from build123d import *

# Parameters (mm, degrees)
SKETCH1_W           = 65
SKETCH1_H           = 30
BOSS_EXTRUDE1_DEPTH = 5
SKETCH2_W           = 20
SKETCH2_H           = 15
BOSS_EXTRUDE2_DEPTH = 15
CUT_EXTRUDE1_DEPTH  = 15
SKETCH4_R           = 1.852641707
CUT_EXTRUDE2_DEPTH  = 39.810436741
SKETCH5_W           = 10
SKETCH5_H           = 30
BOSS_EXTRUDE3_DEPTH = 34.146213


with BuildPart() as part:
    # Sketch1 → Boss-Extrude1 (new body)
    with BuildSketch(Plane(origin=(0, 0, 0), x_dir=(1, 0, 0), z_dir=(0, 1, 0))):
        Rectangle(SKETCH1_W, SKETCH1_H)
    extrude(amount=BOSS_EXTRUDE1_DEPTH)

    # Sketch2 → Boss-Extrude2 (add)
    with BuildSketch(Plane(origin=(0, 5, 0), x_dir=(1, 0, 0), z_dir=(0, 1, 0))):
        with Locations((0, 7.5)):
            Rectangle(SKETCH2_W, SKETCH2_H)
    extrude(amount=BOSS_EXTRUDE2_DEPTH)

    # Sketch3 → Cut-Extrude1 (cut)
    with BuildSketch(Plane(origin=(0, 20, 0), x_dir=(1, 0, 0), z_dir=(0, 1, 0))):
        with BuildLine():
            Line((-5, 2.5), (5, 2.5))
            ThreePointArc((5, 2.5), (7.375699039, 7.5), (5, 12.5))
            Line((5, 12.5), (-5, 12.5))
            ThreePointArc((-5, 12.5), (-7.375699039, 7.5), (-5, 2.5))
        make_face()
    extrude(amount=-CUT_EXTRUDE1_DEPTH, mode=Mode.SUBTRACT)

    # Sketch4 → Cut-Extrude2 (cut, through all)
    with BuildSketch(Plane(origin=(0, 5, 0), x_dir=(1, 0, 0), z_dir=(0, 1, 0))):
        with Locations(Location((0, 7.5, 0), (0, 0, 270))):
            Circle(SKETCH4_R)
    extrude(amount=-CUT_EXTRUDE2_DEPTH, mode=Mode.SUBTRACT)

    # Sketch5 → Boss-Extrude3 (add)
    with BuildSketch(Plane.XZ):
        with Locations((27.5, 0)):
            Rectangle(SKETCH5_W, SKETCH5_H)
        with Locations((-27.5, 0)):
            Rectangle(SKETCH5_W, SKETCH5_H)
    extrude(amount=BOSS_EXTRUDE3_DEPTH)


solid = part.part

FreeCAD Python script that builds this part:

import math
import FreeCAD as App
import Part
import Sketcher

doc = App.newDocument("Part")
body = doc.addObject("PartDesign::Body", "Body")

sketch1 = body.newObject("Sketcher::SketchObject", "Sketch")
sketch1.AttachmentSupport = (doc.getObject("XZ_Plane"), [""])
sketch1.MapMode = "FlatFace"
sketch1.addGeometry(Part.LineSegment(App.Vector(-32, -15, 0), App.Vector(-32, 15, 0)), False)
sketch1.addGeometry(Part.LineSegment(App.Vector(-32, 15, 0), App.Vector(32, 15, 0)), False)
sketch1.addGeometry(Part.LineSegment(App.Vector(32, 15, 0), App.Vector(32, -15, 0)), False)
sketch1.addGeometry(Part.LineSegment(App.Vector(32, -15, 0), App.Vector(-32, -15, 0)), False)
sketch1.addConstraint(Sketcher.Constraint("Coincident", 0, 2, 1, 1))
sketch1.addConstraint(Sketcher.Constraint("Coincident", 1, 2, 2, 1))
sketch1.addConstraint(Sketcher.Constraint("Coincident", 2, 2, 3, 1))
sketch1.addConstraint(Sketcher.Constraint("Coincident", 3, 2, 0, 1))
sketch1.addConstraint(Sketcher.Constraint("Vertical", 0))
sketch1.addConstraint(Sketcher.Constraint("Horizontal", 1))
sketch1.addConstraint(Sketcher.Constraint("Vertical", 2))
sketch1.addConstraint(Sketcher.Constraint("Horizontal", 3))
sketch1.addConstraint(Sketcher.Constraint("Symmetric", 0, 2, 2, 2, -1, 1))
sketch1.addConstraint(Sketcher.Constraint("DistanceX", 1, 1, 1, 2, 65.0))
sketch1.addConstraint(Sketcher.Constraint("DistanceY", 0, 1, 0, 2, 30.0))
pad1 = body.newObject("PartDesign::Pad", "Pad")
pad1.Profile = sketch1
pad1.Length = 5
pad1.Reversed = True

sketch2 = body.newObject("Sketcher::SketchObject", "Sketch001")
sketch2.AttachmentSupport = (doc.getObject("XZ_Plane"), [""])
sketch2.MapMode = "FlatFace"
sketch2.AttachmentOffset = App.Placement(App.Vector(0, 0, -5), App.Rotation())
sketch2.addGeometry(Part.LineSegment(App.Vector(-10, -15, 0), App.Vector(-10, 0, 0)), False)
sketch2.addGeometry(Part.LineSegment(App.Vector(-10, 0, 0), App.Vector(10, 0, 0)), False)
sketch2.addGeometry(Part.LineSegment(App.Vector(10, 0, 0), App.Vector(10, -15, 0)), False)
sketch2.addGeometry(Part.LineSegment(App.Vector(10, -15, 0), App.Vector(-10, -15, 0)), False)
sketch2.addConstraint(Sketcher.Constraint("Coincident", 0, 2, 1, 1))
sketch2.addConstraint(Sketcher.Constraint("Coincident", 1, 2, 2, 1))
sketch2.addConstraint(Sketcher.Constraint("Coincident", 2, 2, 3, 1))
sketch2.addConstraint(Sketcher.Constraint("Coincident", 3, 2, 0, 1))
sketch2.addConstraint(Sketcher.Constraint("Vertical", 0))
sketch2.addConstraint(Sketcher.Constraint("Horizontal", 1))
sketch2.addConstraint(Sketcher.Constraint("Vertical", 2))
sketch2.addConstraint(Sketcher.Constraint("Horizontal", 3))
sketch2.addConstraint(Sketcher.Constraint("Symmetric", 0, 2, 1, 2, -1, 1))
sketch2.addConstraint(Sketcher.Constraint("DistanceX", 1, 1, 1, 2, 20.0))
sketch2.addConstraint(Sketcher.Constraint("DistanceY", 0, 1, 0, 2, 15.0))
pad2 = body.newObject("PartDesign::Pad", "Pad001")
pad2.Profile = sketch2
pad2.Length = 15
pad2.Reversed = True

sketch3 = body.newObject("Sketcher::SketchObject", "Sketch002")
sketch3.AttachmentSupport = (doc.getObject("XZ_Plane"), [""])
sketch3.MapMode = "FlatFace"
sketch3.AttachmentOffset = App.Placement(App.Vector(0, 0, -20), App.Rotation())
sketch3.addGeometry(Part.LineSegment(App.Vector(-5, -2, 0), App.Vector(5, -2, 0)), False)
sketch3.addGeometry(Part.ArcOfCircle(Part.Circle(App.Vector(1, -8, 0), App.Vector(0, 0, 1), 6), math.radians(-51), math.radians(51)), False)
sketch3.addGeometry(Part.LineSegment(App.Vector(5, -12, 0), App.Vector(-5, -12, 0)), False)
sketch3.addGeometry(Part.ArcOfCircle(Part.Circle(App.Vector(-1, -8, 0), App.Vector(0, 0, 1), 6), math.radians(129), math.radians(231)), False)
sketch3.addConstraint(Sketcher.Constraint("Coincident", 0, 2, 1, 2))
sketch3.addConstraint(Sketcher.Constraint("Coincident", 1, 1, 2, 1))
sketch3.addConstraint(Sketcher.Constraint("Coincident", 2, 2, 3, 2))
sketch3.addConstraint(Sketcher.Constraint("Coincident", 3, 1, 0, 1))
sketch3.addConstraint(Sketcher.Constraint("Horizontal", 0))
sketch3.addConstraint(Sketcher.Constraint("Horizontal", 2))
sketch3.addConstraint(Sketcher.Constraint("Equal", 1, 3))
sketch3.addConstraint(Sketcher.Constraint("Symmetric", 1, 3, 3, 3, -2))
sketch3.addConstraint(Sketcher.Constraint("Vertical", 0, 2, 1, 1))
sketch3.addConstraint(Sketcher.Constraint("DistanceX", 0, 1, 0, 2, 10.0))
sketch3.addConstraint(Sketcher.Constraint("DistanceY", 1, 3, 0, 2, 5.0))
sketch3.addConstraint(Sketcher.Constraint("DistanceY", 1, 3, -1, 1, 7.5))
sketch3.addConstraint(Sketcher.Constraint("Radius", 1, 6.449459))
pocket1 = body.newObject("PartDesign::Pocket", "Pocket")
pocket1.Profile = sketch3
pocket1.Length = 15
pocket1.Reversed = True

sketch4 = body.newObject("Sketcher::SketchObject", "Sketch003")
sketch4.AttachmentSupport = (doc.getObject("XZ_Plane"), [""])
sketch4.MapMode = "FlatFace"
sketch4.AttachmentOffset = App.Placement(App.Vector(0, 0, -5), App.Rotation())
sketch4.addGeometry(Part.Circle(App.Vector(0, -7.5, 0), App.Vector(0, 0, 1), 1.9), False)
sketch4.addConstraint(Sketcher.Constraint("PointOnObject", 0, 3, -2))
sketch4.addConstraint(Sketcher.Constraint("DistanceY", 0, 3, -1, 1, 7.5))
sketch4.addConstraint(Sketcher.Constraint("Diameter", 0, 3.705283))
pocket2 = body.newObject("PartDesign::Pocket", "Pocket001")
pocket2.Profile = sketch4
pocket2.Type = "ThroughAll"
pocket2.Reversed = True

sketch5 = body.newObject("Sketcher::SketchObject", "Sketch004")
sketch5.AttachmentSupport = (doc.getObject("XZ_Plane"), [""])
sketch5.MapMode = "FlatFace"
sketch5.addGeometry(Part.LineSegment(App.Vector(22, 15, 0), App.Vector(22, -15, 0)), False)
sketch5.addGeometry(Part.LineSegment(App.Vector(22, -15, 0), App.Vector(32, -15, 0)), False)
sketch5.addGeometry(Part.LineSegment(App.Vector(32, -15, 0), App.Vector(32, 15, 0)), False)
sketch5.addGeometry(Part.LineSegment(App.Vector(32, 15, 0), App.Vector(22, 15, 0)), False)
sketch5.addGeometry(Part.LineSegment(App.Vector(-32, 15, 0), App.Vector(-32, -15, 0)), False)
sketch5.addGeometry(Part.LineSegment(App.Vector(-32, -15, 0), App.Vector(-22, -15, 0)), False)
sketch5.addGeometry(Part.LineSegment(App.Vector(-22, -15, 0), App.Vector(-22, 15, 0)), False)
sketch5.addGeometry(Part.LineSegment(App.Vector(-22, 15, 0), App.Vector(-32, 15, 0)), False)
sketch5.addConstraint(Sketcher.Constraint("Coincident", 0, 2, 1, 1))
sketch5.addConstraint(Sketcher.Constraint("Coincident", 1, 2, 2, 1))
sketch5.addConstraint(Sketcher.Constraint("Coincident", 2, 2, 3, 1))
sketch5.addConstraint(Sketcher.Constraint("Coincident", 3, 2, 0, 1))
sketch5.addConstraint(Sketcher.Constraint("Coincident", 4, 2, 5, 1))
sketch5.addConstraint(Sketcher.Constraint("Coincident", 5, 2, 6, 1))
sketch5.addConstraint(Sketcher.Constraint("Coincident", 6, 2, 7, 1))
sketch5.addConstraint(Sketcher.Constraint("Coincident", 7, 2, 4, 1))
sketch5.addConstraint(Sketcher.Constraint("Vertical", 0))
sketch5.addConstraint(Sketcher.Constraint("Horizontal", 1))
sketch5.addConstraint(Sketcher.Constraint("Vertical", 2))
sketch5.addConstraint(Sketcher.Constraint("Horizontal", 3))
sketch5.addConstraint(Sketcher.Constraint("Vertical", 4))
sketch5.addConstraint(Sketcher.Constraint("Horizontal", 5))
sketch5.addConstraint(Sketcher.Constraint("Vertical", 6))
sketch5.addConstraint(Sketcher.Constraint("Horizontal", 7))
sketch5.addConstraint(Sketcher.Constraint("Symmetric", 2, 2, 4, 2, -1, 1))
sketch5.addConstraint(Sketcher.Constraint("Symmetric", 0, 2, 6, 2, -1, 1))
sketch5.addConstraint(Sketcher.Constraint("Horizontal", 1, 2, 4, 2))
sketch5.addConstraint(Sketcher.Constraint("DistanceX", 1, 1, 1, 2, 10.0))
sketch5.addConstraint(Sketcher.Constraint("DistanceY", 0, 2, 0, 1, 30.0))
sketch5.addConstraint(Sketcher.Constraint("DistanceX", 4, 2, 0, 2, 55.0))
pad3 = body.newObject("PartDesign::Pad", "Pad002")
pad3.Profile = sketch5
pad3.Length = 34.146213

doc.recompute()
